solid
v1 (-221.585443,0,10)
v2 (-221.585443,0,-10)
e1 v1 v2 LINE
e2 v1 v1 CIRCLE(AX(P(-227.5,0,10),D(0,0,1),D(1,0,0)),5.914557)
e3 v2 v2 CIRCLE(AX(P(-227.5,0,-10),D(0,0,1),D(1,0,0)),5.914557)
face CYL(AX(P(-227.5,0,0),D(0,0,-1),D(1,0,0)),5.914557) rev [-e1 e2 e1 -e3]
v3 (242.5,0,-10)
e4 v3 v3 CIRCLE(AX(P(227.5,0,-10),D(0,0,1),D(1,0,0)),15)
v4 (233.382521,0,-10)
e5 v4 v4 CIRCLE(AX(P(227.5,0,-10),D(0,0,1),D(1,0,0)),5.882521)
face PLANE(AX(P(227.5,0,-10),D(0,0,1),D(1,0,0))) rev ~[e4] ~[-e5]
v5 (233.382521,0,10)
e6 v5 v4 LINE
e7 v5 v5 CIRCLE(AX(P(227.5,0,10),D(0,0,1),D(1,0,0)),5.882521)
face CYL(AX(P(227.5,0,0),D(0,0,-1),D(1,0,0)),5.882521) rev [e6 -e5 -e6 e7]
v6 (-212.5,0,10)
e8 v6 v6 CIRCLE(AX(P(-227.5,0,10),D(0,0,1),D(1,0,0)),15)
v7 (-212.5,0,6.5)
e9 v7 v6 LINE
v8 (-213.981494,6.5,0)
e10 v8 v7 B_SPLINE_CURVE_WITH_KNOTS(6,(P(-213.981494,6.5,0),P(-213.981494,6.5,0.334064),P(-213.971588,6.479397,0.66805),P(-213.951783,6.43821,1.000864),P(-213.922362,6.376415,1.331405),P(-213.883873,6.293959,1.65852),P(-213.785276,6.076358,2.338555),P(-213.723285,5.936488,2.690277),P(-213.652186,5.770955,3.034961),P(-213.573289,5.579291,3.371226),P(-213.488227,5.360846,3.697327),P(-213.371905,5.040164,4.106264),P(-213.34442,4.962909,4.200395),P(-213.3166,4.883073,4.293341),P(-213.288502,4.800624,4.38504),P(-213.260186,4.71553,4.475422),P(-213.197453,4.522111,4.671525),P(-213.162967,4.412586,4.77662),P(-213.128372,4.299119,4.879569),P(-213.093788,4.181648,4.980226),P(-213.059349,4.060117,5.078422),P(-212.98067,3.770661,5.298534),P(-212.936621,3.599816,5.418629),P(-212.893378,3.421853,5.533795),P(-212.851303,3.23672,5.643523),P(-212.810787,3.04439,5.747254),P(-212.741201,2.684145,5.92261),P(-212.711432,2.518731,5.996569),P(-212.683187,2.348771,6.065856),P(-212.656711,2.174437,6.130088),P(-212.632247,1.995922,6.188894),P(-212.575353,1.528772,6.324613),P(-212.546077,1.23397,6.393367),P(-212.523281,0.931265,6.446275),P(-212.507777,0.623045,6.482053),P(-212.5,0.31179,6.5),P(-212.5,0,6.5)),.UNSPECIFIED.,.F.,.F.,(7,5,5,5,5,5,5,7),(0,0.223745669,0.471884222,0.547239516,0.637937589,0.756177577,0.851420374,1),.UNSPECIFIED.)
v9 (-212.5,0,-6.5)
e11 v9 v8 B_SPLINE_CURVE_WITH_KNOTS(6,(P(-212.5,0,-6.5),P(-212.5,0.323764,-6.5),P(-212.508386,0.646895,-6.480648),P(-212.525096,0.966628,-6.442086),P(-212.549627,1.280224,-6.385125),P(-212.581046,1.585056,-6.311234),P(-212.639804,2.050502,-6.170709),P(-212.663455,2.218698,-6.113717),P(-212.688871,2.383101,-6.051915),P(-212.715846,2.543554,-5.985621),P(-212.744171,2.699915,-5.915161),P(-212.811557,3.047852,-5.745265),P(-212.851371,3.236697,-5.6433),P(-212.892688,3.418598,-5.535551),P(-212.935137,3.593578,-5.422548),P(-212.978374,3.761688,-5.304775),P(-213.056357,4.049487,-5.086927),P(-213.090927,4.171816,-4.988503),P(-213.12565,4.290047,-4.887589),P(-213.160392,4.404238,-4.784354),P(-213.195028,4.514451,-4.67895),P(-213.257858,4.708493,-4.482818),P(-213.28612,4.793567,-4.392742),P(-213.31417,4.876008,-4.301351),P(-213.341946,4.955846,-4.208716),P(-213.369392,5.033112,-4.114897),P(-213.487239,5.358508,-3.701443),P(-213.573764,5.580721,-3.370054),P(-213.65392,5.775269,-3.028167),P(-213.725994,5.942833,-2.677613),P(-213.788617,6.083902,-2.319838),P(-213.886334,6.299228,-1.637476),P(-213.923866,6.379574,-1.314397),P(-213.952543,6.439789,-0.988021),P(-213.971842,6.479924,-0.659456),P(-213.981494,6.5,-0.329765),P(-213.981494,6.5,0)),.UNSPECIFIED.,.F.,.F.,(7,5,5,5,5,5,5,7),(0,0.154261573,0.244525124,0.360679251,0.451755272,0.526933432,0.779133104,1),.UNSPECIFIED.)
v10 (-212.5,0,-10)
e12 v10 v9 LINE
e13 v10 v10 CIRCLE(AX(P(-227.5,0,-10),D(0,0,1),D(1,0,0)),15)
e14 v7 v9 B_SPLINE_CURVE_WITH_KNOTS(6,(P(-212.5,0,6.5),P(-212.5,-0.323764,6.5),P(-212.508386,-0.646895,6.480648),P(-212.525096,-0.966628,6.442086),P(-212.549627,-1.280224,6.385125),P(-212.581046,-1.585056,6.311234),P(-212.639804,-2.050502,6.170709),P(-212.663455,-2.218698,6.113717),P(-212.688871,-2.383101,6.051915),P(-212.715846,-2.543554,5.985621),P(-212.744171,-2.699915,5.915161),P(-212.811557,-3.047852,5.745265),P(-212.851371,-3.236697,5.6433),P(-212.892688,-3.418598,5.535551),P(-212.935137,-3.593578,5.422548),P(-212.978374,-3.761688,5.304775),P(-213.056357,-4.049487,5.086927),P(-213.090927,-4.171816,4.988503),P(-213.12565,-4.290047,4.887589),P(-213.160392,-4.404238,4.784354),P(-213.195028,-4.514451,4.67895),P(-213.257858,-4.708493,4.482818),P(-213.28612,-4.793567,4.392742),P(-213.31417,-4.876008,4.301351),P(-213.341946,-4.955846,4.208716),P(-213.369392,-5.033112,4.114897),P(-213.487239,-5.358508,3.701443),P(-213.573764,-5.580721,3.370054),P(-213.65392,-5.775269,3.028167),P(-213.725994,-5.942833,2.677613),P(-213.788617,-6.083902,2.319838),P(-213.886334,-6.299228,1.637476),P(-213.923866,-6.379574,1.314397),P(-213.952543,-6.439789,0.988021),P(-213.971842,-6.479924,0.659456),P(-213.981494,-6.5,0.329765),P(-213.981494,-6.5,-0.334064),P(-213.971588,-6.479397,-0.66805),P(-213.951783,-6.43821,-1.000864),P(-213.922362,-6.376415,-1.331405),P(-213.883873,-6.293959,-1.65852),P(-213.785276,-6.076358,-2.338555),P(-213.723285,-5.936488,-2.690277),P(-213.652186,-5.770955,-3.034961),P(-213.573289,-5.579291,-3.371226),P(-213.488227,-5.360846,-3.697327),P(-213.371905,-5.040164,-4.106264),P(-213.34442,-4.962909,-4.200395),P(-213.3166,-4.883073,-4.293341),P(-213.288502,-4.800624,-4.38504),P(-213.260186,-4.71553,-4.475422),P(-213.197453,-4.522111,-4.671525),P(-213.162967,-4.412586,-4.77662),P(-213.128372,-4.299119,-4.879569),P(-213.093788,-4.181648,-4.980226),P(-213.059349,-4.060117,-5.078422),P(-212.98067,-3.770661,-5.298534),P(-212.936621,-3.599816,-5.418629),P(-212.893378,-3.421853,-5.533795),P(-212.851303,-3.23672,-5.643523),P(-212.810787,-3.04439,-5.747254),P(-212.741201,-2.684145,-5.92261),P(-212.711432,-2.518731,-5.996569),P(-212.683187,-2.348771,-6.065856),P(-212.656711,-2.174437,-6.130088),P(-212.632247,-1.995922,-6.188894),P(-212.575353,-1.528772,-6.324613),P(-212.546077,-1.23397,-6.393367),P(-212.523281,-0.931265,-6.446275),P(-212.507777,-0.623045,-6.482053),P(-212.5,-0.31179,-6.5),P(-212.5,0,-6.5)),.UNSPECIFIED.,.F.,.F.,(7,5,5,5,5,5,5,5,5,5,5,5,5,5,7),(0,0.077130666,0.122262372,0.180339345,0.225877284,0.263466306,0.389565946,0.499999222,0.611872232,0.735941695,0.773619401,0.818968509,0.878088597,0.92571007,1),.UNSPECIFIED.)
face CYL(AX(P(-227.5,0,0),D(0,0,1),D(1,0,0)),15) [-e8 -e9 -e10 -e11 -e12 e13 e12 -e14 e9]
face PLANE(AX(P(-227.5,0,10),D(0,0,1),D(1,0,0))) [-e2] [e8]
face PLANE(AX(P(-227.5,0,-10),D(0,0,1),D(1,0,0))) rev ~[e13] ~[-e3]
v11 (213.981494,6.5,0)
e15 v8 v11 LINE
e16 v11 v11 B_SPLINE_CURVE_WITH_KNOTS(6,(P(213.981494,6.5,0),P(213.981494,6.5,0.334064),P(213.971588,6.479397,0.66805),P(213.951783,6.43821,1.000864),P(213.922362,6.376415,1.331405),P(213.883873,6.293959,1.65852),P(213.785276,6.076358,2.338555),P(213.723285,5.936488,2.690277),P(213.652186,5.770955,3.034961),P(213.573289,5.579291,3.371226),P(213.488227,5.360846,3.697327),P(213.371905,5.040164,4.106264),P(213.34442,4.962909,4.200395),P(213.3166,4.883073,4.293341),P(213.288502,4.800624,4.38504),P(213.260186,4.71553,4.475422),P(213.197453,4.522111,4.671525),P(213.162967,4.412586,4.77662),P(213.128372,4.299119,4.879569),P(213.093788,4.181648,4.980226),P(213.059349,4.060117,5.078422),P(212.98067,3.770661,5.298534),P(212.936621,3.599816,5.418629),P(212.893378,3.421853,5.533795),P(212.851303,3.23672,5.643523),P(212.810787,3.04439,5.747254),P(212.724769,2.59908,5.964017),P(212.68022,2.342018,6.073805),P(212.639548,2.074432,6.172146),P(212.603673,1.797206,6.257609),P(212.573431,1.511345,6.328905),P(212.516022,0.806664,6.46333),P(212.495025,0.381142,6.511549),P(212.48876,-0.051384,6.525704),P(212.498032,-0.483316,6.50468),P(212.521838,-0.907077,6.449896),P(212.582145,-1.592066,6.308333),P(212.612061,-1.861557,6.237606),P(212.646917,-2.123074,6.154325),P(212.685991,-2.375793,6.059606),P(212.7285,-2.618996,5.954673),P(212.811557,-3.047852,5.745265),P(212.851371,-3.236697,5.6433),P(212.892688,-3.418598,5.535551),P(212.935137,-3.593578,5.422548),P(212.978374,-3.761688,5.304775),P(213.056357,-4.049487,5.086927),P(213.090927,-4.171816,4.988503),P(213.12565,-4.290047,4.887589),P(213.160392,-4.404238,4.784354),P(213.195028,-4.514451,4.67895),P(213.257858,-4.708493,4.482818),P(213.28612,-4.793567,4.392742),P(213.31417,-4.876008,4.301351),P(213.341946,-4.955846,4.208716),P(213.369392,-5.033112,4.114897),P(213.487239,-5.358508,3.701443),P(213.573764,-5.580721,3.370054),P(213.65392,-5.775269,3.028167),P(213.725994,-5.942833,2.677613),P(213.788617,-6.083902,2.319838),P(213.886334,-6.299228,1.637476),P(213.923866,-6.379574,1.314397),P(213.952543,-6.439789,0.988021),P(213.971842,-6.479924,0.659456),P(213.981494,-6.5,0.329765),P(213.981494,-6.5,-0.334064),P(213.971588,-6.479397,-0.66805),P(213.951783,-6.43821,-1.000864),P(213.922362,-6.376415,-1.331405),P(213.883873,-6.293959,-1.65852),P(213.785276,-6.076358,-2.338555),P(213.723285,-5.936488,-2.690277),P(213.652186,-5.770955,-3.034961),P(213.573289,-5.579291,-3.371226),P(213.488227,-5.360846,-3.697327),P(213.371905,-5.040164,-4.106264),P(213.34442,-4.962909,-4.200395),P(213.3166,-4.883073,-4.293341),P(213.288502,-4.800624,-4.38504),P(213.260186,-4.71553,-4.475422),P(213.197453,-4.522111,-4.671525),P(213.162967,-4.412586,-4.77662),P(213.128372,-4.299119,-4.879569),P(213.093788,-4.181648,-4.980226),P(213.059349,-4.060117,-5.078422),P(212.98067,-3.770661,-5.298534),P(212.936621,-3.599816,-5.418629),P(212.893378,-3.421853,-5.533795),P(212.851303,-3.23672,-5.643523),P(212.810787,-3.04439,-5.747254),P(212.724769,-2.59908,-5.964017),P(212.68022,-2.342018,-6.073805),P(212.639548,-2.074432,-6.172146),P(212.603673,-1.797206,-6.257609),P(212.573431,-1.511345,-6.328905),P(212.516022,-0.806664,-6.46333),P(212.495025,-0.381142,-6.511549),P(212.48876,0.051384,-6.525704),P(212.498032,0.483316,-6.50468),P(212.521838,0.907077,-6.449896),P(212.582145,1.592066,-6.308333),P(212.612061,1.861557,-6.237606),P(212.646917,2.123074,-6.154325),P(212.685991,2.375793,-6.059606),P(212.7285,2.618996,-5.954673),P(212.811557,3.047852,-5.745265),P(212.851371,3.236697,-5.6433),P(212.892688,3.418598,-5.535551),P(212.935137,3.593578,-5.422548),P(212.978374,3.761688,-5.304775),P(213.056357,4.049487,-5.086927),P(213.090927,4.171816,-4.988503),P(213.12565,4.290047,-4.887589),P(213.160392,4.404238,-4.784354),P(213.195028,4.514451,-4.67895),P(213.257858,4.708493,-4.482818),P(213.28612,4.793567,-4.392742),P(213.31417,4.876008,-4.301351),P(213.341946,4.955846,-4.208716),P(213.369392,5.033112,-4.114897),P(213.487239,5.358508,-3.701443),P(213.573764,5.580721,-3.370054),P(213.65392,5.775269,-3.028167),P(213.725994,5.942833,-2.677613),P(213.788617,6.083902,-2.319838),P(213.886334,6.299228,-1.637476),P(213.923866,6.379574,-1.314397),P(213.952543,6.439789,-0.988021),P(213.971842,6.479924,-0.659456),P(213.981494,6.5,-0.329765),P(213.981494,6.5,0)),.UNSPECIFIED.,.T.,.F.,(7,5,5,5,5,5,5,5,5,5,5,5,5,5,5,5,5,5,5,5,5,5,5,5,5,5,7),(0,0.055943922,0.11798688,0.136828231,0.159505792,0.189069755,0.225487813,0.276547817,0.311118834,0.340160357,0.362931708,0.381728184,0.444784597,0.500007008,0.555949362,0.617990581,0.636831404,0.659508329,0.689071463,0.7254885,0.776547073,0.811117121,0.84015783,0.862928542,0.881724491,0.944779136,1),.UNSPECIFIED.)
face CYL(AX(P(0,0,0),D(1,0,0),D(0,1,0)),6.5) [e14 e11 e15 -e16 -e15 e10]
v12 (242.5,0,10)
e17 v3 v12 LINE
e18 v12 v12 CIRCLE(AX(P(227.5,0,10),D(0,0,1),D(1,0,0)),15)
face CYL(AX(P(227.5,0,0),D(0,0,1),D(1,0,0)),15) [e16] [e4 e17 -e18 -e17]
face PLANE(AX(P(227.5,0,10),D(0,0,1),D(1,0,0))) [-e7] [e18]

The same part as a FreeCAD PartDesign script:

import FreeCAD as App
import Part
import Sketcher

doc = App.newDocument("Part")
body = doc.addObject("PartDesign::Body", "Body")

sketch1 = body.newObject("Sketcher::SketchObject", "Sketch")
sketch1.AttachmentSupport = (doc.getObject("XY_Plane"), [""])
sketch1.MapMode = "FlatFace"
sketch1.addGeometry([
    Part.Circle(App.Vector(-228, 0, 0), App.Vector(0, 0, 1), 15),
    Part.Circle(App.Vector(-228, 0, 0), App.Vector(0, 0, 1), 6),
], False)
sketch1.addConstraint([
    Sketcher.Constraint("Coincident", 1, 3, 0, 3),
    Sketcher.Constraint("PointOnObject", 0, 3, -1),
    Sketcher.Constraint("Diameter", 0, 30.0),
    Sketcher.Constraint("DistanceX", 0, 3, -1, 1, 227.5),
    Sketcher.Constraint("Diameter", 1, 11.829114),
])
pad1 = body.newObject("PartDesign::Pad", "Pad")
pad1.Profile = sketch1
pad1.Length = 20
pad1.Midplane = True
body2 = doc.addObject("PartDesign::Body", "Body001")

sketch2 = body2.newObject("Sketcher::SketchObject", "Sketch001")
sketch2.AttachmentSupport = (doc.getObject("XY_Plane001"), [""])
sketch2.MapMode = "FlatFace"
sketch2.addGeometry([
    Part.Circle(App.Vector(228, 0, 0), App.Vector(0, 0, 1), 15),
    Part.Circle(App.Vector(228, 0, 0), App.Vector(0, 0, 1), 6),
], False)
sketch2.addConstraint([
    Sketcher.Constraint("Coincident", 1, 3, 0, 3),
    Sketcher.Constraint("PointOnObject", 0, 3, -1),
    Sketcher.Constraint("Diameter", 0, 30.0),
    Sketcher.Constraint("DistanceX", -1, 1, 0, 3, 227.5),
    Sketcher.Constraint("Diameter", 1, 11.765042),
])
pad2 = body2.newObject("PartDesign::Pad", "Pad001")
pad2.Profile = sketch2
pad2.Length = 20
pad2.Midplane = True
body.AllowCompound = True
doc.recompute()

boolean = body.newObject("PartDesign::Boolean", "Boolean")
boolean.Type = "Fuse"
boolean.addObjects([body2])

sketch3 = body.newObject("Sketcher::SketchObject", "Sketch002")
sketch3.AttachmentSupport = (doc.getObject("YZ_Plane"), [""])
sketch3.MapMode = "FlatFace"
sketch3.addGeometry(Part.Circle(App.Vector(0, 0, 0), App.Vector(0, 0, 1), 6), False)
sketch3.addConstraint([
    Sketcher.Constraint("Coincident", 0, 3, -1, 1),
    Sketcher.Constraint("Diameter", 0, 13.0),
])
pad3 = body.newObject("PartDesign::Pad", "Pad002")
pad3.Profile = sketch3
pad3.Length = 431.366831
pad3.Midplane = True

doc.recompute()
